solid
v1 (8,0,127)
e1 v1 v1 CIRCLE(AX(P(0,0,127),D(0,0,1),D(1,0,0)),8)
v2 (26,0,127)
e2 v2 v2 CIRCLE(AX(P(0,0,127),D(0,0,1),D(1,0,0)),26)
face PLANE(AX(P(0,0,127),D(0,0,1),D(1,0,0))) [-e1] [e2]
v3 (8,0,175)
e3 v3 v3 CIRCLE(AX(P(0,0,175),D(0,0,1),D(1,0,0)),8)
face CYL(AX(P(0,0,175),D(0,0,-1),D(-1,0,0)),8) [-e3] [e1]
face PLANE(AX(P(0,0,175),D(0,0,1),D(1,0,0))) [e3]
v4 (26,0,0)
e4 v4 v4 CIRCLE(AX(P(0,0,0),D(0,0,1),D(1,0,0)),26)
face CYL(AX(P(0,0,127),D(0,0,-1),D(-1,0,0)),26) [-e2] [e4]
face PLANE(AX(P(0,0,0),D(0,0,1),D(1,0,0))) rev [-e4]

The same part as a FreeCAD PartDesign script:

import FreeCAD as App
import Part
import Sketcher
from FreeCAD import Vector
Q = App.Units.Quantity

doc = App.newDocument("Part")
body = doc.addObject("PartDesign::Body", "Body")

sketch1 = body.newObject("Sketcher::SketchObject", "Sketch")
sketch1.AttachmentSupport = (doc.getObject("XY_Plane"), [""])
sketch1.MapMode = "FlatFace"
sketch1.addGeometry([
    Part.Circle(Vector(0, 0, 0), Vector(0, 0, 1), 26),
    Part.Circle(Vector(0, 0, 0), Vector(0, 0, 1), 8),
], False)
sketch1.addConstraint([
    Sketcher.Constraint("Coincident", 0, 3, -1, 1),
    Sketcher.Constraint("Coincident", 1, 3, -1, 1),
    Sketcher.Constraint("Diameter", 0, Q("52 mm")),
    Sketcher.Constraint("Diameter", 1, Q("16 mm")),
])
pad1 = body.newObject("PartDesign::Pad", "Pad")
pad1.Profile = sketch1
pad1.Length = 127

sketch2 = body.newObject("Sketcher::SketchObject", "Sketch001")
sketch2.AttachmentSupport = (doc.getObject("XY_Plane"), [""])
sketch2.MapMode = "FlatFace"
sketch2.addGeometry(Part.Circle(Vector(0, 0, 0), Vector(0, 0, 1), 8), False)
sketch2.addConstraint([
    Sketcher.Constraint("Coincident", 0, 3, -1, 1),
    Sketcher.Constraint("Diameter", 0, Q("16 mm")),
])
pad2 = body.newObject("PartDesign::Pad", "Pad001")
pad2.Profile = sketch2
pad2.Length = 175

doc.recompute()
